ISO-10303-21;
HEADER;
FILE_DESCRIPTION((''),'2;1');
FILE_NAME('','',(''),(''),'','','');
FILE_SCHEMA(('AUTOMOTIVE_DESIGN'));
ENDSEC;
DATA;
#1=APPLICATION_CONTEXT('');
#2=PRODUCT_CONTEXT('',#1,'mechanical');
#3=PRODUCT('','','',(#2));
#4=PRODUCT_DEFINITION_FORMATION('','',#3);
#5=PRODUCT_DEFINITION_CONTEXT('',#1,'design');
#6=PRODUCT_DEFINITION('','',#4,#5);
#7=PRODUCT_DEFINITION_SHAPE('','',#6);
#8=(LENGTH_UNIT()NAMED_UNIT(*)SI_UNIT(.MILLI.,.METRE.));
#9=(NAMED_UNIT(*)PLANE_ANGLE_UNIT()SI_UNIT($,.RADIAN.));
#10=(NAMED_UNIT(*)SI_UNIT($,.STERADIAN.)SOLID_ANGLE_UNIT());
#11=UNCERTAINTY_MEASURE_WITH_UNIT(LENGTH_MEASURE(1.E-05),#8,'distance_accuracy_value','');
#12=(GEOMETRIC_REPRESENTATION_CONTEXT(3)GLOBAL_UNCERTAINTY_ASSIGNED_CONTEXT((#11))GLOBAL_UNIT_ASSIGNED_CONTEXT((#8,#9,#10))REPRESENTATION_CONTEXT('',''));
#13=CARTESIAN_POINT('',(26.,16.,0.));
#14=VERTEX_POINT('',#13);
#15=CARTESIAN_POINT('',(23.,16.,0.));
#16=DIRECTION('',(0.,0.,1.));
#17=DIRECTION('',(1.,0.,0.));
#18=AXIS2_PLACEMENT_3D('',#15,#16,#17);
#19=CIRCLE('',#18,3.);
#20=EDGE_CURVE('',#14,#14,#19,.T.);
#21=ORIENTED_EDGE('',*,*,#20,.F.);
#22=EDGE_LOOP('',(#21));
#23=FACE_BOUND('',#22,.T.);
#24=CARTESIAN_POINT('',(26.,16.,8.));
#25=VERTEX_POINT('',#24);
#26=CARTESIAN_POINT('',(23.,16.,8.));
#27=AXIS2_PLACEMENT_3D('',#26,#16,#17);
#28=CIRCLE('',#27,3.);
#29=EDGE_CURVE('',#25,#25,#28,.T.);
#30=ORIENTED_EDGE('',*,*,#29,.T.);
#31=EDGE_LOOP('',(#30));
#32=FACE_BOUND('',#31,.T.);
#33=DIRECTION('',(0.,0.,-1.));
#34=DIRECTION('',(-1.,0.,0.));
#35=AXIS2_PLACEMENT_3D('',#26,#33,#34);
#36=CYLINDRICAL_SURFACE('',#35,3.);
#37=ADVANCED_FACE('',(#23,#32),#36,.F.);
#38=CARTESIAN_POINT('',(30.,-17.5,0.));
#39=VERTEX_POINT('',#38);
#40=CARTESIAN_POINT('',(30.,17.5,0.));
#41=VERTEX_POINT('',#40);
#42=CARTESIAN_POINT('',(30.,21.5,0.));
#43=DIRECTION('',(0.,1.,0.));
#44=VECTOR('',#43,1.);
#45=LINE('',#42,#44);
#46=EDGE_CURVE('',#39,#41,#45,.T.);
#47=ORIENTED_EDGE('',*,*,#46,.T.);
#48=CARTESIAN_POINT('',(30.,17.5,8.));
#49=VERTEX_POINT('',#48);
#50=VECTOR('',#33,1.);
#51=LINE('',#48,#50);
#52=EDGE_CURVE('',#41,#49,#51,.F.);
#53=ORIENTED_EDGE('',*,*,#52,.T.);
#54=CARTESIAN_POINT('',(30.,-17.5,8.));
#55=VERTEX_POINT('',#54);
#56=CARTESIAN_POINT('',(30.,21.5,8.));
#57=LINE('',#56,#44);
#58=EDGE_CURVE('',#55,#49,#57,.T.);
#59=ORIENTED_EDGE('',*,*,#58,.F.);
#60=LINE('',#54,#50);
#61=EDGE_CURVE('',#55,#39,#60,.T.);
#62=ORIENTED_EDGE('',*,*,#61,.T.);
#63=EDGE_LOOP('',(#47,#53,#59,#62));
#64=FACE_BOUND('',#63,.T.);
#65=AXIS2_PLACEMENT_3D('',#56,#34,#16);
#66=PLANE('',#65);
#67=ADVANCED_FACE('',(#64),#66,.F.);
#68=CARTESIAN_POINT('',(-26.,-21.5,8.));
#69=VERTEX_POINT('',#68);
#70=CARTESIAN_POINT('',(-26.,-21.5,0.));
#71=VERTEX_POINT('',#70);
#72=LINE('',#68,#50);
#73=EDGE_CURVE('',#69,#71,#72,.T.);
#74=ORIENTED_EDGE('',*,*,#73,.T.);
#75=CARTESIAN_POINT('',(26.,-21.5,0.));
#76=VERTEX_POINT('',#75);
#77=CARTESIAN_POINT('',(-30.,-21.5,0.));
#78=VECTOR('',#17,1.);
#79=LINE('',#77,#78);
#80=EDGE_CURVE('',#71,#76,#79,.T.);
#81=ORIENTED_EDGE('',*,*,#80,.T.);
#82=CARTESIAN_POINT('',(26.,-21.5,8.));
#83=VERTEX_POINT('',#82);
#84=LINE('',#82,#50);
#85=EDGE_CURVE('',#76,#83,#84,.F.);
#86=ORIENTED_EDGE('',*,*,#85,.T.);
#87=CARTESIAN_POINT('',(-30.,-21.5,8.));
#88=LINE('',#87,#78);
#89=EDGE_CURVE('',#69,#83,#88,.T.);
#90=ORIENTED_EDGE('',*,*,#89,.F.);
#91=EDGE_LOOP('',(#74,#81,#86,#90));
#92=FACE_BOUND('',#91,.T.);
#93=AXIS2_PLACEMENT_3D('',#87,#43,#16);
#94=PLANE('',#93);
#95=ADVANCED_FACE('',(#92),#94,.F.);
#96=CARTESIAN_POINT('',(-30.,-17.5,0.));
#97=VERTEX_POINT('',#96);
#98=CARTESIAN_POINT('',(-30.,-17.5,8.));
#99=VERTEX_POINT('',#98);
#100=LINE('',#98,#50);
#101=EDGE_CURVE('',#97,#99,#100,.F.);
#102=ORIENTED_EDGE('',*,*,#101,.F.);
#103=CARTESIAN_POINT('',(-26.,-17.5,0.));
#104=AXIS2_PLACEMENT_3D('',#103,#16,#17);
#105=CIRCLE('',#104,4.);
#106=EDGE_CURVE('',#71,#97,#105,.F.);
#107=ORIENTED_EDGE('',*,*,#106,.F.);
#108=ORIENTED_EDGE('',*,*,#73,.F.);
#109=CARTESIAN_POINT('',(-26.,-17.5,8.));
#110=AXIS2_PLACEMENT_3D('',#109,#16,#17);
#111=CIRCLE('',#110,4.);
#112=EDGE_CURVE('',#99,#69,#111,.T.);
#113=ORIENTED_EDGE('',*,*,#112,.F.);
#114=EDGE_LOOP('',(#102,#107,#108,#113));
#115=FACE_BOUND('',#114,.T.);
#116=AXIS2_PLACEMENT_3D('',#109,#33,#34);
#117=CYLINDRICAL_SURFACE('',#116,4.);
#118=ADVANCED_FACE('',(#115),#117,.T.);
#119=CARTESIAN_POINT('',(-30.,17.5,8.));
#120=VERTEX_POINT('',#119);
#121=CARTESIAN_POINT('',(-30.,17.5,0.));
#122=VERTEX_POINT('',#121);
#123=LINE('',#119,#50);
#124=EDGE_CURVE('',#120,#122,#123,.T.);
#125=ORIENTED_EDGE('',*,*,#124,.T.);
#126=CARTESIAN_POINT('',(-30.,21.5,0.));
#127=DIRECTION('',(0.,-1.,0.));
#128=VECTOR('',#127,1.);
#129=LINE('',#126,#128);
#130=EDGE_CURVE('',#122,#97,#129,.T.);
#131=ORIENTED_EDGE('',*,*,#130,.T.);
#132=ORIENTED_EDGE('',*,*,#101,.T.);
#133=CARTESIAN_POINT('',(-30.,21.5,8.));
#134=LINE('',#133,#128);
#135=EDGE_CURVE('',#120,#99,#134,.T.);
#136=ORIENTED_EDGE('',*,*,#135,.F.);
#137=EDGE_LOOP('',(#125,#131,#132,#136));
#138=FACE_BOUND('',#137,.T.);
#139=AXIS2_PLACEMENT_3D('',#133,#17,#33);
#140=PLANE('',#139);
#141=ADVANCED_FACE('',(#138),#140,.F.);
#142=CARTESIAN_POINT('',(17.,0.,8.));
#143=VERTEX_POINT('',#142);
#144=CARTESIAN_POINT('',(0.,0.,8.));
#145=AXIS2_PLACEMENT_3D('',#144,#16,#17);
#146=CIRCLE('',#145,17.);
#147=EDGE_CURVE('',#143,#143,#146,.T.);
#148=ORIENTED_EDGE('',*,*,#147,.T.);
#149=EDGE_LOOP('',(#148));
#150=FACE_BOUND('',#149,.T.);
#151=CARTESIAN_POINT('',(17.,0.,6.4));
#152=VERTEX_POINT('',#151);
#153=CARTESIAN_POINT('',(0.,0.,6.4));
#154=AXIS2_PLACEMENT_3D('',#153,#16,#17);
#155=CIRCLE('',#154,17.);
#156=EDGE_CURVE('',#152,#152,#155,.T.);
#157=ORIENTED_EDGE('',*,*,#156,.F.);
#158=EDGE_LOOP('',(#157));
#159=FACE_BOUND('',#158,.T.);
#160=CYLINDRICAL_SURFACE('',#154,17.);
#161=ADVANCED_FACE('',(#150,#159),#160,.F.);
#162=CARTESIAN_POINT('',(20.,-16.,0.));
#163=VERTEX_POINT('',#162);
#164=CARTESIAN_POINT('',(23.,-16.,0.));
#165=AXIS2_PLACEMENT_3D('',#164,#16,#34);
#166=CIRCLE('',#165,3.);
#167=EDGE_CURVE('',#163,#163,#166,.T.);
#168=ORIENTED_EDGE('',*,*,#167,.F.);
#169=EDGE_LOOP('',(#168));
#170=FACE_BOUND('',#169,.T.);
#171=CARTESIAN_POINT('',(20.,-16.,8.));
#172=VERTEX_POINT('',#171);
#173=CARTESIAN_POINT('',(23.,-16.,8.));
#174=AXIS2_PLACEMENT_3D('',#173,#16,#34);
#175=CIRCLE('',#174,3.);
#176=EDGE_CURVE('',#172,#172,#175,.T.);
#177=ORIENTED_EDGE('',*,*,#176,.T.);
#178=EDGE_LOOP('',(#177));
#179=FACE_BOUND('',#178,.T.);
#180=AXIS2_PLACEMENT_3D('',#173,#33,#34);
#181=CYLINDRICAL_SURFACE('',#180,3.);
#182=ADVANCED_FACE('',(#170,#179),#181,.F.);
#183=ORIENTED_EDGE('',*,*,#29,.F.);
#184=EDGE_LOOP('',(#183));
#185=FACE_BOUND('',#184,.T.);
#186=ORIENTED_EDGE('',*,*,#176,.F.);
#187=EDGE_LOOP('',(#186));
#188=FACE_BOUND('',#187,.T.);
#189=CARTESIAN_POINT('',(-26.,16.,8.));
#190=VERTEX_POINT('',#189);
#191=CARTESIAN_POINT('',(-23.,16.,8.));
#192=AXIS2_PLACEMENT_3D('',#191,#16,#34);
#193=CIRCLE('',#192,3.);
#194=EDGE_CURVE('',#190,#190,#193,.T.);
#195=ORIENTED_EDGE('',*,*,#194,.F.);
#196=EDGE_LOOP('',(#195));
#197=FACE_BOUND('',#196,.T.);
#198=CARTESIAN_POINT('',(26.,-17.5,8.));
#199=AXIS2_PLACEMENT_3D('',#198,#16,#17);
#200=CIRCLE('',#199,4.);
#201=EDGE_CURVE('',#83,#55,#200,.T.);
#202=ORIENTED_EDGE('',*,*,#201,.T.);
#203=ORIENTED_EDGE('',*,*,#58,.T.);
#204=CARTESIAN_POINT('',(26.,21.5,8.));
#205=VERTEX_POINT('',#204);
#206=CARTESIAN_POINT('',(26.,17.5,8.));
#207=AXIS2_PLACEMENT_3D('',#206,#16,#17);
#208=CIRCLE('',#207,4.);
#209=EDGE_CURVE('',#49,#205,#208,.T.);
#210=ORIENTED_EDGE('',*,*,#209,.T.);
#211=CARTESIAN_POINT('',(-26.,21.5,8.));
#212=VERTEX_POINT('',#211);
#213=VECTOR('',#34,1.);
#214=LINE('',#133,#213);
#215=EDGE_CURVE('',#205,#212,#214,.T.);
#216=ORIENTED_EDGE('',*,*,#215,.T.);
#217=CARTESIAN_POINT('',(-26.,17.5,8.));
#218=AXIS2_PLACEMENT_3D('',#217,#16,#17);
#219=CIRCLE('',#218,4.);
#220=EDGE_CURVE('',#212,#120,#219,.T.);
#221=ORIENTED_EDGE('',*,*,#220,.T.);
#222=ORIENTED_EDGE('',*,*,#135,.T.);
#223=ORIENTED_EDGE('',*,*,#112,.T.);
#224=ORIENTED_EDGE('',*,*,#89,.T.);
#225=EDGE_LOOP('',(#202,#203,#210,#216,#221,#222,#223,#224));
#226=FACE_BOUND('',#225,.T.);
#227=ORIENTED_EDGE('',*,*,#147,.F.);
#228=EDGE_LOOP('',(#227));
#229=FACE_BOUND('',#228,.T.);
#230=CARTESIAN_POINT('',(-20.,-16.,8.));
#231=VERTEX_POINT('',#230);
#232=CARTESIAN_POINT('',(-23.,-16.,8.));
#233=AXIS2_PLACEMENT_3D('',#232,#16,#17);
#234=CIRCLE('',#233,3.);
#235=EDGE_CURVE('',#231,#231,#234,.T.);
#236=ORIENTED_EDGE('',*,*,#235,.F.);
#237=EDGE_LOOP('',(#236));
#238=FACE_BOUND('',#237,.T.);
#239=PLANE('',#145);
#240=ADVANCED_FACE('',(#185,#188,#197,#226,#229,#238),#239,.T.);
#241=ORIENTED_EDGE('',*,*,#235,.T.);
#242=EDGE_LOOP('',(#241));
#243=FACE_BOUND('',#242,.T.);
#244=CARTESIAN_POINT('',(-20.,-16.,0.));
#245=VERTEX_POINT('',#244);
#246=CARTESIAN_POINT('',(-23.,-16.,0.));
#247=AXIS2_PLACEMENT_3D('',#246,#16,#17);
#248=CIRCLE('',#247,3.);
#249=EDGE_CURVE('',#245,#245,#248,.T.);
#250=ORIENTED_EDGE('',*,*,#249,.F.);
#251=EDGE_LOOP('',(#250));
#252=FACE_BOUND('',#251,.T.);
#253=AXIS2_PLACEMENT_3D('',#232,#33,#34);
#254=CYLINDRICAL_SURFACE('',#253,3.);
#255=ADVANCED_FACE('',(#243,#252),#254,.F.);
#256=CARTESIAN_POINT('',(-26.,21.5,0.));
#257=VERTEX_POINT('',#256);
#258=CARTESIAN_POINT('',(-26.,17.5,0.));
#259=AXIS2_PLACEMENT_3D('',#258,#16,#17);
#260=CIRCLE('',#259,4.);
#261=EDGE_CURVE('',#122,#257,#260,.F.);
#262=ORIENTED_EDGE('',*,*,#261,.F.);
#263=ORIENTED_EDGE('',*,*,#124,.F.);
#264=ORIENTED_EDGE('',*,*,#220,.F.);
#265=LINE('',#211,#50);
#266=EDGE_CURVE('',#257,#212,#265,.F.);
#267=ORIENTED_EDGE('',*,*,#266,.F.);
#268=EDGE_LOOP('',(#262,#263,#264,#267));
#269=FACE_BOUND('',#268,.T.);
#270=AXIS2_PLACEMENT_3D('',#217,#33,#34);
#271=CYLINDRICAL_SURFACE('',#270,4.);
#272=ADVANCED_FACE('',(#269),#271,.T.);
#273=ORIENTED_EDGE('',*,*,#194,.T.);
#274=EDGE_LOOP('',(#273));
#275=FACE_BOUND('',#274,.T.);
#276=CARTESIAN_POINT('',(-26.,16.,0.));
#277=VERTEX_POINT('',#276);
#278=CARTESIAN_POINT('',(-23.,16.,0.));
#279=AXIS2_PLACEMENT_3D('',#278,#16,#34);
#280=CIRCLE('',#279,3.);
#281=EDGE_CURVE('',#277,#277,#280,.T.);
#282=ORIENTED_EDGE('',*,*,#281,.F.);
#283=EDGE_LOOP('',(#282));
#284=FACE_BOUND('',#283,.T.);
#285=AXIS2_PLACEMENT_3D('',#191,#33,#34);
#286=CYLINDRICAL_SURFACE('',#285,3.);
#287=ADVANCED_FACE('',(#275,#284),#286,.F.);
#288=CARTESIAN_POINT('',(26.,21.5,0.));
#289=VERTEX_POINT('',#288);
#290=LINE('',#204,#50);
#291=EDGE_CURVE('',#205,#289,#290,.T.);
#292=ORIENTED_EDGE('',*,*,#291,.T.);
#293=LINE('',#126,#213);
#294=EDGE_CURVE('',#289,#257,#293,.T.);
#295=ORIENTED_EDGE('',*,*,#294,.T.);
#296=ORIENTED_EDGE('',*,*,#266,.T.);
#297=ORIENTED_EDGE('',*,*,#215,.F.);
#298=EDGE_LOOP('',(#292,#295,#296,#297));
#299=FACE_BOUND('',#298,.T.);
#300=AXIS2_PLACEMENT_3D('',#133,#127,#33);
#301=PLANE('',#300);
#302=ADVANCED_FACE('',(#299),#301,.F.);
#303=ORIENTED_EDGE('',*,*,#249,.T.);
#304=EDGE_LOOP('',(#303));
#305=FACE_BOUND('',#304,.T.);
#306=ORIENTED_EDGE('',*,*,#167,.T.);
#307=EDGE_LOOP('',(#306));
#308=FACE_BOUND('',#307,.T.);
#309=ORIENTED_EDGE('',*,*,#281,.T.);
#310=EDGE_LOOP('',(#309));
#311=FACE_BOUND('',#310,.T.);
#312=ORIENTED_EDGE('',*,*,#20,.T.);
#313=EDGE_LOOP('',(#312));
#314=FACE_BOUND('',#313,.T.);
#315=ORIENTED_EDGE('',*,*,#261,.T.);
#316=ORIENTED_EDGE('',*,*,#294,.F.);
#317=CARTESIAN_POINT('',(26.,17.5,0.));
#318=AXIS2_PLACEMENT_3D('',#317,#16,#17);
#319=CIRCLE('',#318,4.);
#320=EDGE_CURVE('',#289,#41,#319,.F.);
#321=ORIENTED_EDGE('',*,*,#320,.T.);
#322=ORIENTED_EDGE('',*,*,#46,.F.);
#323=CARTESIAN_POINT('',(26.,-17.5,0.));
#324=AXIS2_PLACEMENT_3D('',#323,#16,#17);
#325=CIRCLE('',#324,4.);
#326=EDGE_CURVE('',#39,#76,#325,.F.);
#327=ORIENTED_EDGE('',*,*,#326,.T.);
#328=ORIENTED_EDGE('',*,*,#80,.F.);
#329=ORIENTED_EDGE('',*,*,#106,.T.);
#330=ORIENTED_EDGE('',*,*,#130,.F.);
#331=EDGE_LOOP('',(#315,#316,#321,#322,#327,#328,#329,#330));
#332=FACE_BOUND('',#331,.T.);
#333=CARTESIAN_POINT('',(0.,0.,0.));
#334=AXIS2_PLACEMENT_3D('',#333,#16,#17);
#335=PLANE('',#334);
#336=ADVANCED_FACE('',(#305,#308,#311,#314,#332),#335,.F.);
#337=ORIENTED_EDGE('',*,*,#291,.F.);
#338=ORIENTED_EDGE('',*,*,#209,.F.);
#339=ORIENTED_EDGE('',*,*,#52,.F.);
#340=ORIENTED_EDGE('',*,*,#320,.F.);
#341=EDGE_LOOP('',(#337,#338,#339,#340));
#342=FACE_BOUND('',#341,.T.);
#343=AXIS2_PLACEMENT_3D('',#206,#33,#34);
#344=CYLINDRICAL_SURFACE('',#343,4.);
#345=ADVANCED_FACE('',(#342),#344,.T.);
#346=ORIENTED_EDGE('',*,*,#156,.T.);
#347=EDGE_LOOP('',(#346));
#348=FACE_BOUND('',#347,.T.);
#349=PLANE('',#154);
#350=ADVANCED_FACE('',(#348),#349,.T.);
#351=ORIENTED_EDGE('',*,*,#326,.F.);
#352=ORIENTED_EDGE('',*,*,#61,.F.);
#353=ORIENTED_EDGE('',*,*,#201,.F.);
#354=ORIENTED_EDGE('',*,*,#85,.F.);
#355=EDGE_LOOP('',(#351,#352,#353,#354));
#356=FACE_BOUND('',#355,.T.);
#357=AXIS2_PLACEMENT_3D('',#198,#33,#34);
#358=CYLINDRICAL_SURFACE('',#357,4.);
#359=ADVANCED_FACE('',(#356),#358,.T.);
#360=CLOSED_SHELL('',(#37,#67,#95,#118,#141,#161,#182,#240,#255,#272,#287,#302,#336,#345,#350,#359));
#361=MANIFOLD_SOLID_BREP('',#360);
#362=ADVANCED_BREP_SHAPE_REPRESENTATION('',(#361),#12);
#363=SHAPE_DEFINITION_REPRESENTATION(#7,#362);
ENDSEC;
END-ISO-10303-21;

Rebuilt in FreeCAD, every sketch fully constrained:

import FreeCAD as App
import Part
import Sketcher
Q = App.Units.Quantity


def edges_at(feature, points):
    """Names of the edges that pass closest to the given points."""
    edges = feature.Shape.Edges
    near = lambda p: min(range(len(edges)), key=lambda i: edges[i].distToShape(Part.Vertex(*p))[0])
    return sorted({f"Edge{near(p) + 1}" for p in points})

doc = App.newDocument("Part")
body = doc.addObject("PartDesign::Body", "Body")

# Sketch on XY plane
sketch1 = doc.addObject("Sketcher::SketchObject", "Sketch")
body.addObject(sketch1)
sketch1.AttachmentSupport = (doc.XY_Plane, [""])
sketch1.MapMode = "FlatFace"
sketch1.addGeometry(Part.LineSegment(App.Vector(-30, 21.5, 0), App.Vector(-30, -21.5, 0)), False)
sketch1.addGeometry(Part.LineSegment(App.Vector(-30, -21.5, 0), App.Vector(30, -21.5, 0)), False)
sketch1.addGeometry(Part.LineSegment(App.Vector(30, -21.5, 0), App.Vector(30, 21.5, 0)), False)
sketch1.addGeometry(Part.LineSegment(App.Vector(30, 21.5, 0), App.Vector(-30, 21.5, 0)), False)
sketch1.addGeometry(Part.Circle(App.Vector(-23, -16, 0), App.Vector(0, 0, 1), 3), False)
sketch1.addGeometry(Part.Circle(App.Vector(23, -16, 0), App.Vector(0, 0, 1), 3), False)
sketch1.addGeometry(Part.Circle(App.Vector(-23, 16, 0), App.Vector(0, 0, 1), 3), False)
sketch1.addGeometry(Part.Circle(App.Vector(23, 16, 0), App.Vector(0, 0, 1), 3), False)
sketch1.addConstraint(Sketcher.Constraint("Coincident", 0, 2, 1, 1))
sketch1.addConstraint(Sketcher.Constraint("Coincident", 1, 2, 2, 1))
sketch1.addConstraint(Sketcher.Constraint("Coincident", 2, 2, 3, 1))
sketch1.addConstraint(Sketcher.Constraint("Coincident", 3, 2, 0, 1))
sketch1.addConstraint(Sketcher.Constraint("Vertical", 0))
sketch1.addConstraint(Sketcher.Constraint("Horizontal", 1))
sketch1.addConstraint(Sketcher.Constraint("Vertical", 2))
sketch1.addConstraint(Sketcher.Constraint("Horizontal", 3))
sketch1.addConstraint(Sketcher.Constraint("Equal", 4, 5))
sketch1.addConstraint(Sketcher.Constraint("Equal", 5, 6))
sketch1.addConstraint(Sketcher.Constraint("Equal", 6, 7))
sketch1.addConstraint(Sketcher.Constraint("Symmetric", 5, 3, 6, 3, -1, 1))
sketch1.addConstraint(Sketcher.Constraint("Symmetric", 4, 3, 7, 3, -1, 1))
sketch1.addConstraint(Sketcher.Constraint("Symmetric", 0, 2, 2, 2, -1, 1))
sketch1.addConstraint(Sketcher.Constraint("Symmetric", 4, 3, 5, 3, -2))
sketch1.addConstraint(Sketcher.Constraint("Diameter", 4, Q("6 mm")))
sketch1.addConstraint(Sketcher.Constraint("DistanceX", 1, 1, 1, 2, Q("60 mm")))
sketch1.addConstraint(Sketcher.Constraint("DistanceY", 0, 2, 0, 1, Q("43 mm")))
sketch1.addConstraint(Sketcher.Constraint("DistanceX", 4, 3, -1, 1, Q("23 mm")))
sketch1.addConstraint(Sketcher.Constraint("DistanceY", 4, 3, -1, 1, Q("16 mm")))
pad1 = doc.addObject("PartDesign::Pad", "Pad")
body.addObject(pad1)
pad1.Profile = sketch1
pad1.Length = 8
doc.recompute()

fillet = doc.addObject("PartDesign::Fillet", "Fillet")
body.addObject(fillet)
fillet.Base = (pad1, edges_at(pad1, [
    (30, -21.5, 4),
    (-30, -21.5, 4),
    (-30, 21.5, 4),
    (30, 21.5, 4),
]))
fillet.Radius = 4

# Sketch on XY plane
sketch2 = doc.addObject("Sketcher::SketchObject", "Sketch001")
body.addObject(sketch2)
sketch2.AttachmentSupport = (doc.XY_Plane, [""])
sketch2.MapMode = "FlatFace"
sketch2.AttachmentOffset = App.Placement(App.Vector(0, 0, 8), App.Rotation())
sketch2.addGeometry(Part.Circle(App.Vector(0, 0, 0), App.Vector(0, 0, 1), 17), False)
sketch2.addConstraint(Sketcher.Constraint("Coincident", 0, 3, -1, 1))
sketch2.addConstraint(Sketcher.Constraint("Diameter", 0, Q("34 mm")))
pocket1 = doc.addObject("PartDesign::Pocket", "Pocket")
body.addObject(pocket1)
pocket1.Profile = sketch2
pocket1.Length = 1.6

doc.recompute()
